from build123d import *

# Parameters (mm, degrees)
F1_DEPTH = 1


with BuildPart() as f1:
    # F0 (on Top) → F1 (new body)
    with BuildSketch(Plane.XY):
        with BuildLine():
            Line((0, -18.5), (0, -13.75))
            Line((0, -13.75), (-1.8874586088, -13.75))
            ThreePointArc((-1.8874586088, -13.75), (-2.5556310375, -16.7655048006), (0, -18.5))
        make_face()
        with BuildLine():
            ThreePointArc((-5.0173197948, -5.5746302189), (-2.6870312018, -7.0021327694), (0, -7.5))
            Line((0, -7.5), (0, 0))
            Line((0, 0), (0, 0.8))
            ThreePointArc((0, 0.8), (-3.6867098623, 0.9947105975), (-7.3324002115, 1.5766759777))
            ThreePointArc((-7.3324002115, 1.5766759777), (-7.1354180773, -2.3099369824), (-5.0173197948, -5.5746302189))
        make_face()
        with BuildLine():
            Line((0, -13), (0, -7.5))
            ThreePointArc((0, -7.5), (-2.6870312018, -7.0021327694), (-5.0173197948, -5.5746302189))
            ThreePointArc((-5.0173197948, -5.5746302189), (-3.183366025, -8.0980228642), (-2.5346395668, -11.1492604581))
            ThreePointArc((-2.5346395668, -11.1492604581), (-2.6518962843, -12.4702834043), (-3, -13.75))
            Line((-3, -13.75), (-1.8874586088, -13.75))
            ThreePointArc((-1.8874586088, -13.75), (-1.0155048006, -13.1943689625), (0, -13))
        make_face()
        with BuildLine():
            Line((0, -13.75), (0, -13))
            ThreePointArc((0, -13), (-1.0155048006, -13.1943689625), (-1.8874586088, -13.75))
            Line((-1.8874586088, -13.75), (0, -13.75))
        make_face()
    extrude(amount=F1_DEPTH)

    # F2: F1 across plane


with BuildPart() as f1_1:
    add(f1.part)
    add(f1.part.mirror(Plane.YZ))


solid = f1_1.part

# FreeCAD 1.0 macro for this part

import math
import FreeCAD as App
import Part
import Sketcher

doc = App.newDocument("Part")
body = doc.addObject("PartDesign::Body", "Body")

sketch1 = body.newObject("Sketcher::SketchObject", "Sketch")
sketch1.AttachmentSupport = (doc.getObject("XY_Plane"), [""])
sketch1.MapMode = "FlatFace"
sketch1.addGeometry(Part.LineSegment(App.Vector(0, -18.5, 0), App.Vector(0, 0.8, 0)), False)
sketch1.addGeometry(Part.ArcOfCircle(Part.Circle(App.Vector(0, 35.8, 0), App.Vector(0, 0, 1), 35), math.radians(-102.09), math.radians(-90)), False)
sketch1.addGeometry(Part.ArcOfCircle(Part.Circle(App.Vector(0, 0, 0), App.Vector(0, 0, 1), 7.5), math.radians(168), math.radians(228)), False)
sketch1.addGeometry(Part.ArcOfCircle(Part.Circle(App.Vector(-10, -11.1, 0), App.Vector(0, 0, 1), 7.5), math.radians(0), math.radians(48)), False)
sketch1.addGeometry(Part.ArcOfCircle(Part.Circle(App.Vector(-10, -11.1, 0), App.Vector(0, 0, 1), 7.5), math.radians(-20), math.radians(0)), False)
sketch1.addGeometry(Part.LineSegment(App.Vector(-3, -13.8, 0), App.Vector(-1.9, -13.8, 0)), False)
sketch1.addGeometry(Part.ArcOfCircle(Part.Circle(App.Vector(0, -15.8, 0), App.Vector(0, 0, 1), 2.8), math.radians(133), math.radians(270)), False)
sketch1.addConstraint(Sketcher.Constraint("Coincident", 0, 2, 1, 2))
sketch1.addConstraint(Sketcher.Constraint("Coincident", 1, 1, 2, 1))
sketch1.addConstraint(Sketcher.Constraint("Tangent", 2, 2, 3, 2))
sketch1.addConstraint(Sketcher.Constraint("Tangent", 3, 1, 4, 2))
sketch1.addConstraint(Sketcher.Constraint("Coincident", 4, 1, 5, 1))
sketch1.addConstraint(Sketcher.Constraint("Coincident", 5, 2, 6, 1))
sketch1.addConstraint(Sketcher.Constraint("Coincident", 6, 2, 0, 1))
sketch1.addConstraint(Sketcher.Constraint("Vertical", 0))
sketch1.addConstraint(Sketcher.Constraint("Horizontal", 5))
sketch1.addConstraint(Sketcher.Constraint("Coincident", 2, 3, -1, 1))
sketch1.addConstraint(Sketcher.Constraint("Equal", 2, 3))
sketch1.addConstraint(Sketcher.Constraint("Equal", 3, 4))
sketch1.addConstraint(Sketcher.Constraint("PointOnObject", 1, 3, -2))
sketch1.addConstraint(Sketcher.Constraint("PointOnObject", 6, 3, -2))
sketch1.addConstraint(Sketcher.Constraint("PointOnObject", 0, 2, -2))
sketch1.addConstraint(Sketcher.Constraint("Horizontal", 4, 3, 3, 1))
sketch1.addConstraint(Sketcher.Constraint("Radius", 1, 35.0))
sketch1.addConstraint(Sketcher.Constraint("Radius", 2, 7.5))
sketch1.addConstraint(Sketcher.Constraint("Radius", 6, 2.75))
sketch1.addConstraint(Sketcher.Constraint("DistanceY", 0, 1, 0, 2, 19.3))
sketch1.addConstraint(Sketcher.Constraint("DistanceX", 4, 1, -1, 1, 3.0))
sketch1.addConstraint(Sketcher.Constraint("DistanceY", 6, 3, 4, 1, 2.0))
sketch1.addConstraint(Sketcher.Constraint("DistanceY", -1, 1, 1, 3, 35.8))
pad1 = body.newObject("PartDesign::Pad", "Pad")
pad1.Profile = sketch1
pad1.Length = 1
body2 = doc.addObject("PartDesign::Body", "Body001")
doc.recompute()

body2.BaseFeature = body
doc.recompute()

mirroring = doc.addObject("Part::Mirroring", "Mirroring")
mirroring.Source = body
mirroring.Base = App.Vector(0, 0, 0)
mirroring.Normal = App.Vector(1, 0, 0)
body3 = doc.addObject("PartDesign::Body", "Body002")
body3.BaseFeature = mirroring
boolean = body2.newObject("PartDesign::Boolean", "Boolean")
boolean.Type = "Fuse"
boolean.addObjects([body3])
doc.recompute()
mirroring.Visibility = False

doc.recompute()
